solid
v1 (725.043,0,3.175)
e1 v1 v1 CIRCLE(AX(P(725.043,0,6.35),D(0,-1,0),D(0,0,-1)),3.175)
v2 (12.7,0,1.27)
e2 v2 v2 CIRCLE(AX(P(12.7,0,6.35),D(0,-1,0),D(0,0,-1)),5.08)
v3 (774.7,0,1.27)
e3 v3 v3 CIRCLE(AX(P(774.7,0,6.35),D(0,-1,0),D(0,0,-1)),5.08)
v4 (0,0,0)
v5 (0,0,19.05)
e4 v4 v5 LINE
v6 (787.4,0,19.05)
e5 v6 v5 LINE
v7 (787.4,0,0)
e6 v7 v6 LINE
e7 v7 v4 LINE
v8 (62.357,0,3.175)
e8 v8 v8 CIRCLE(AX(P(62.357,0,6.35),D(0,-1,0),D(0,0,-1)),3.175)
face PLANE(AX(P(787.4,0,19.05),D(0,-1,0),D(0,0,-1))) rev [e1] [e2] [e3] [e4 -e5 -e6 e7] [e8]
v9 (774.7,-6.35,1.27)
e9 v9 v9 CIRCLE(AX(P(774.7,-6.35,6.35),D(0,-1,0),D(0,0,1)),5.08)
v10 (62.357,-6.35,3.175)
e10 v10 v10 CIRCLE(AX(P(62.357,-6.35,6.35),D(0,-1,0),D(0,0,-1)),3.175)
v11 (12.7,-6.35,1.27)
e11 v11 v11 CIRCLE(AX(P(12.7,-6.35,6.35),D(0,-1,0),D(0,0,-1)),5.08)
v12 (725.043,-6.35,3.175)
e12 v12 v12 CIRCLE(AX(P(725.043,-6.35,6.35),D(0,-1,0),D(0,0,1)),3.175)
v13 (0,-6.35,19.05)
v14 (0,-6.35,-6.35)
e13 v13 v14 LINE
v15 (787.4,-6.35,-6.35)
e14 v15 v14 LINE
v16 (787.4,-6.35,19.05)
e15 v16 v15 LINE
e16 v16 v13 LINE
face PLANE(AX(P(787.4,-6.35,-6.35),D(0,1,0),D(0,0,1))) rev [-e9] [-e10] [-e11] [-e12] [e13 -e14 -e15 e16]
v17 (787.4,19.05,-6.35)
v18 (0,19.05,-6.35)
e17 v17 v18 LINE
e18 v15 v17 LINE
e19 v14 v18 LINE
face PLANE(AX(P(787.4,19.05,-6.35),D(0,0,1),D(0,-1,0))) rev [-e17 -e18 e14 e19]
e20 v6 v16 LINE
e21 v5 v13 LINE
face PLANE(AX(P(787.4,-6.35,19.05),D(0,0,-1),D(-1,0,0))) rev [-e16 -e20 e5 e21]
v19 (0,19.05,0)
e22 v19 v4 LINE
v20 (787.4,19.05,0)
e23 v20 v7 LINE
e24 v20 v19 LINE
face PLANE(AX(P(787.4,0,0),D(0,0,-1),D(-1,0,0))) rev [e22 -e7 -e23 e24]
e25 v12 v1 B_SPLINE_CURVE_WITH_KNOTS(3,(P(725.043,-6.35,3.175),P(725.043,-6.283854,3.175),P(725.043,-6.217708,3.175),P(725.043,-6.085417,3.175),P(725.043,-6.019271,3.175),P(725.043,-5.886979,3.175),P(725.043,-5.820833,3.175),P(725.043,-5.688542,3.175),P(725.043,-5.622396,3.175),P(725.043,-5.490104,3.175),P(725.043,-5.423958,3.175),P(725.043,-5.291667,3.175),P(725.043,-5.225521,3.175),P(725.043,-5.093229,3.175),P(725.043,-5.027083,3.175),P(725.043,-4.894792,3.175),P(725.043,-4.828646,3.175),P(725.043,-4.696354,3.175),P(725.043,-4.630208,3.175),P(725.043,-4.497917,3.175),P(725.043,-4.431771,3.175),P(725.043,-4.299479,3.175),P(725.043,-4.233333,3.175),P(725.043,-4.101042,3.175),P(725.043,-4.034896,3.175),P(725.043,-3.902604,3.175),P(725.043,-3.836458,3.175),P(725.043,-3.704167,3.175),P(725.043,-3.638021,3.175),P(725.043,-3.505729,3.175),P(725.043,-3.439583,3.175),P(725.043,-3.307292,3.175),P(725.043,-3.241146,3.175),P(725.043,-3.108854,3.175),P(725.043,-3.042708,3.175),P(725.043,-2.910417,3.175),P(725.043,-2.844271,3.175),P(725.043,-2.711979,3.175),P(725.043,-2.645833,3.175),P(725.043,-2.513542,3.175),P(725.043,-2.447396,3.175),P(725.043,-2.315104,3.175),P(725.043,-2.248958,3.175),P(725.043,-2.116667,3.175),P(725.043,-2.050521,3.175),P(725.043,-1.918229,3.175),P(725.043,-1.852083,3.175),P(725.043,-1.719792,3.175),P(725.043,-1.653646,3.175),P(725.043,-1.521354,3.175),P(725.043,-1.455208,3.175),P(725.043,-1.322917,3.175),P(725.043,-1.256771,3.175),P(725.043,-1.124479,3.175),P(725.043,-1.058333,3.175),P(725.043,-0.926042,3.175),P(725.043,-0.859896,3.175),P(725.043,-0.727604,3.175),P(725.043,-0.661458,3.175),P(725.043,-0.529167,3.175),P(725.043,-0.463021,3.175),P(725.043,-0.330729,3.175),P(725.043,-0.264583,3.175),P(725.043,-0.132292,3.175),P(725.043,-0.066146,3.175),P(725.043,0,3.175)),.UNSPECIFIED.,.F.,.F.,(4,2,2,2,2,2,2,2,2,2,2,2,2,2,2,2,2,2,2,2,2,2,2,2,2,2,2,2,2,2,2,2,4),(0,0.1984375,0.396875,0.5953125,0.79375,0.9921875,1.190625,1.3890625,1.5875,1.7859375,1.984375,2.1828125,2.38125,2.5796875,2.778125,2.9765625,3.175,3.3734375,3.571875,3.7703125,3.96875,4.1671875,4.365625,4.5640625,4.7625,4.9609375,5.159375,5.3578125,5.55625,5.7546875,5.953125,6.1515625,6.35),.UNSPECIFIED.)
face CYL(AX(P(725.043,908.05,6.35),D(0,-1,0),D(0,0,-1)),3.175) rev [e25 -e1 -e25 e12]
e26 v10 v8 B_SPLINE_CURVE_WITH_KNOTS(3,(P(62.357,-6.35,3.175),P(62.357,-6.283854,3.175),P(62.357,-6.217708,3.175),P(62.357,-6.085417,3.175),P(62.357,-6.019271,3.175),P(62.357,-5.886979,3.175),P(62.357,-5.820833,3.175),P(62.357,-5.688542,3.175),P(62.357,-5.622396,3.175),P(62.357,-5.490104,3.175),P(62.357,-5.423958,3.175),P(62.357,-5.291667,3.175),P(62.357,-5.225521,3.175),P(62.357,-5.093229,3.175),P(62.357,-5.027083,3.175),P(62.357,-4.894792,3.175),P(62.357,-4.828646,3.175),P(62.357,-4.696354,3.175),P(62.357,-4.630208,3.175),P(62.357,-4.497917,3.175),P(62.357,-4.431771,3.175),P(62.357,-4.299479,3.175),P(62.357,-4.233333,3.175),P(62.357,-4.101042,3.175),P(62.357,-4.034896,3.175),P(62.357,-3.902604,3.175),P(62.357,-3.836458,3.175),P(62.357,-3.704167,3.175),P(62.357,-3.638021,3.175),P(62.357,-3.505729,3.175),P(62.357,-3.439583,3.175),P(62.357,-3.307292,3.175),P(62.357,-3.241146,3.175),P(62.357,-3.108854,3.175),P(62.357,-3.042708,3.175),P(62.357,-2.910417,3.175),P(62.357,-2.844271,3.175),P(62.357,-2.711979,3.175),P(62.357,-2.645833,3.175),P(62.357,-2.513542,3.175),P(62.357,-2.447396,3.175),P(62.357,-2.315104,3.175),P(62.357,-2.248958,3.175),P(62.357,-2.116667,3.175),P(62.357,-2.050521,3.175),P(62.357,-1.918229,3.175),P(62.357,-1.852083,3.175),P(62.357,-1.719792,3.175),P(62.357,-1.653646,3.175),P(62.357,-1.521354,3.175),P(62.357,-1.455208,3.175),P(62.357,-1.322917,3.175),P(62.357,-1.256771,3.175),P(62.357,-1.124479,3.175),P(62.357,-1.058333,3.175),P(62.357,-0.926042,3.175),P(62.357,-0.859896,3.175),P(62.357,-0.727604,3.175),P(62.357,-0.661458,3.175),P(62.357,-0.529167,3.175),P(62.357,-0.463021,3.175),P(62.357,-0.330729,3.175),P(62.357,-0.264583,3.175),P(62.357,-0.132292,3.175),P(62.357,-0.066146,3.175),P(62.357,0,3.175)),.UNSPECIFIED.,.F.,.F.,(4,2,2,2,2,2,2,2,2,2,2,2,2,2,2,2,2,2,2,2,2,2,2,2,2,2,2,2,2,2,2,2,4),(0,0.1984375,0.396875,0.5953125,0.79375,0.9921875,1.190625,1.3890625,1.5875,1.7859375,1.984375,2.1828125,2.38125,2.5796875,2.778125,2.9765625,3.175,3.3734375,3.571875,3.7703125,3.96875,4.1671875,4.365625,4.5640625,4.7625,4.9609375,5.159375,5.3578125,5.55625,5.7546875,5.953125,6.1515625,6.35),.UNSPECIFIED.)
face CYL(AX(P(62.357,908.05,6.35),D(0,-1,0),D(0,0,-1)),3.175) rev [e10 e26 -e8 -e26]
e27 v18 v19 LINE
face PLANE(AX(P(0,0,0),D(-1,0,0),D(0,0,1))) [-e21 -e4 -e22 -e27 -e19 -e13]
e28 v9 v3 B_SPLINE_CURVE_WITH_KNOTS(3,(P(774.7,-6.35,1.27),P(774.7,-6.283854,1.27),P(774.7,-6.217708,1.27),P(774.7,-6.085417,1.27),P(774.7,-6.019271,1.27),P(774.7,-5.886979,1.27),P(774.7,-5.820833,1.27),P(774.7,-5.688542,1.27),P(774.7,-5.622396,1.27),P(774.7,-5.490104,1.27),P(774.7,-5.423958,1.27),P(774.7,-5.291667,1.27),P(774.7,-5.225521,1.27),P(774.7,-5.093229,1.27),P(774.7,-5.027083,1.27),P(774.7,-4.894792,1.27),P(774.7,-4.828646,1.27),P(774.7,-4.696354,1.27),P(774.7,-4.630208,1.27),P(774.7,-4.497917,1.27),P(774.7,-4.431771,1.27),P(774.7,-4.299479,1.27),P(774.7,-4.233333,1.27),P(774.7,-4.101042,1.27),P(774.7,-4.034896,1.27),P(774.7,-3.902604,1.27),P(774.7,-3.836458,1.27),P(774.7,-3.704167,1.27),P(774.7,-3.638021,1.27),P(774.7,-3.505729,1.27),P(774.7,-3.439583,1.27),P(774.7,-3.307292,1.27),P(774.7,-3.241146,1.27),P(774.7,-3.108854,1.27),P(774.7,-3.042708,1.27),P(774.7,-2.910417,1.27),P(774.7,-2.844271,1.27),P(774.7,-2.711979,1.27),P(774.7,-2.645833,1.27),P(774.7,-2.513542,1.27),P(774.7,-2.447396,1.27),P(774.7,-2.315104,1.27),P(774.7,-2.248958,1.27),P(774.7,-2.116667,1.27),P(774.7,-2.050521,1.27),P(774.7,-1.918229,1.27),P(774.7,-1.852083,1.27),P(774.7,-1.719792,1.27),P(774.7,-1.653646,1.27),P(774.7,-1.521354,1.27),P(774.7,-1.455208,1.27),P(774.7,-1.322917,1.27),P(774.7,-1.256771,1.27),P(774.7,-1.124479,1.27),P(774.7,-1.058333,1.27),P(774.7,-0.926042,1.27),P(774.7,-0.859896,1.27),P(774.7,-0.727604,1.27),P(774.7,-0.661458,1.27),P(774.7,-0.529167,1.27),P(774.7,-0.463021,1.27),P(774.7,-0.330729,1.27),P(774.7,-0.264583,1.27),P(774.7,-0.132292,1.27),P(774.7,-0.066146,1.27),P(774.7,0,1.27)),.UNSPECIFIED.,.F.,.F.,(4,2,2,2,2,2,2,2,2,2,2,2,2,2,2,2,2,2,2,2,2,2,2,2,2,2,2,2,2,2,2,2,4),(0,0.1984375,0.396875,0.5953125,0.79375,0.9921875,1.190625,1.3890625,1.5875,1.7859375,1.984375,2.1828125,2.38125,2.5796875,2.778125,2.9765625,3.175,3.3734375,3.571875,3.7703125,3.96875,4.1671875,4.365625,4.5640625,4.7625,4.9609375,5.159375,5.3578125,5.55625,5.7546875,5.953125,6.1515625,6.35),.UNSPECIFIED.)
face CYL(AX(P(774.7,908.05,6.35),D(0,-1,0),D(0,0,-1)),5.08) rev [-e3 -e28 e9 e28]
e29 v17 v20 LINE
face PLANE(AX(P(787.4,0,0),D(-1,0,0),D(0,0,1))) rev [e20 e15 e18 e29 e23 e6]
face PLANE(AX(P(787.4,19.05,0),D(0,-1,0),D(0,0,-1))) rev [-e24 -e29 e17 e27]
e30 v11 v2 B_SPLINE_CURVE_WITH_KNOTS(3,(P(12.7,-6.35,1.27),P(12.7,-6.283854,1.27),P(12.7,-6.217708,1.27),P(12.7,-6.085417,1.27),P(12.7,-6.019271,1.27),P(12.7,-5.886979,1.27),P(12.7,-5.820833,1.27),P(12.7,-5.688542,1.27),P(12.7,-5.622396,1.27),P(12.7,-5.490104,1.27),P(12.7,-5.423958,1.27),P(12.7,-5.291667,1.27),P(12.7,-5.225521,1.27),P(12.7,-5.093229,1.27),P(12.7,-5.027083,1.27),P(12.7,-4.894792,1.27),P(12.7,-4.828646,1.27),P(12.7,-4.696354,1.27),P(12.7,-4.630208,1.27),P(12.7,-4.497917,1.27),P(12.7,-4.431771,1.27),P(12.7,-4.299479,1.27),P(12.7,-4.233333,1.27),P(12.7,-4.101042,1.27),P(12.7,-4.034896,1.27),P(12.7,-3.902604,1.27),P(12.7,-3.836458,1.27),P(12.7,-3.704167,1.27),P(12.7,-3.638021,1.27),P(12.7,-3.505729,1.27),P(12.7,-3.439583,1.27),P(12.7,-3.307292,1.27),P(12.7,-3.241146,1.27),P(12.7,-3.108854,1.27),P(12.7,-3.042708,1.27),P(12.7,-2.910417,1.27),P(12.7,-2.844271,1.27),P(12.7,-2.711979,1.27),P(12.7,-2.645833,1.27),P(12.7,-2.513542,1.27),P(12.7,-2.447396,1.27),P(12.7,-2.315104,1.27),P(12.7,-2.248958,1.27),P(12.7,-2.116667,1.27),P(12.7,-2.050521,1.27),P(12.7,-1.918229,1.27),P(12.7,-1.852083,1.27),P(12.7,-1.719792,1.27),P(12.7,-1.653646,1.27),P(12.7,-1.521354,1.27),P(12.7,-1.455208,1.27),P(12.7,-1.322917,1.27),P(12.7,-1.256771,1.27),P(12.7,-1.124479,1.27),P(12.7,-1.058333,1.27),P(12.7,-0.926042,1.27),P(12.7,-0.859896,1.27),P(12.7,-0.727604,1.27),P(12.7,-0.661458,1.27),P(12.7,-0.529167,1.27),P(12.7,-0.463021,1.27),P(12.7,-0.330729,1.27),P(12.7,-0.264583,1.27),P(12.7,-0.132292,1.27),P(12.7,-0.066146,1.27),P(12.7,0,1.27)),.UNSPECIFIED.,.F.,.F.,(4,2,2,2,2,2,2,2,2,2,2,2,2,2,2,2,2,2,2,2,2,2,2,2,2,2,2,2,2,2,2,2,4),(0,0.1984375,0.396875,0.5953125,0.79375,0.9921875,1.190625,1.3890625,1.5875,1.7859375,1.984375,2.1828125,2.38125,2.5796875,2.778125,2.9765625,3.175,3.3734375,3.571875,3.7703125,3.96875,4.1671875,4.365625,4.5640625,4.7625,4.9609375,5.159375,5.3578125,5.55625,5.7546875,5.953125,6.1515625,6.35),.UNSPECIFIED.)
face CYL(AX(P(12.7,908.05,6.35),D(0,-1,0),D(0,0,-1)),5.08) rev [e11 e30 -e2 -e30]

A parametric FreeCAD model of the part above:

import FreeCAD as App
import Part
import Sketcher
Q = App.Units.Quantity


def add_polygon(sketch, points):
    """Adds a closed chain of lines whose ends are joined by coincident constraints."""
    first, n = sketch.GeometryCount, len(points)
    for a, b in zip(points, points[1:] + points[:1]):
        sketch.addGeometry(Part.LineSegment(App.Vector(*a, 0), App.Vector(*b, 0)), False)
    for i in range(n):
        sketch.addConstraint(Sketcher.Constraint("Coincident", first + i, 2, first + (i + 1) % n, 1))

doc = App.newDocument("Part")
body = doc.addObject("PartDesign::Body", "Body")

# Sketch on YZ plane
sketch1 = body.newObject("Sketcher::SketchObject", "Sketch")
sketch1.AttachmentSupport = (doc.getObject("YZ_Plane"), [""])
sketch1.MapMode = "FlatFace"
add_polygon(sketch1, [(19, 0), (0, 0), (0, 19), (-6, 19), (-6, -6), (19, -6)])  # lines 0-5
sketch1.addConstraint([
    Sketcher.Constraint("Horizontal", 0),
    Sketcher.Constraint("Vertical", 1),
    Sketcher.Constraint("Horizontal", 2),
    Sketcher.Constraint("Vertical", 3),
    Sketcher.Constraint("Horizontal", 4),
    Sketcher.Constraint("Vertical", 5),
    Sketcher.Constraint("Coincident", 0, 2, -1, 1),
    Sketcher.Constraint("Equal", 0, 1),
    Sketcher.Constraint("Equal", 4, 3),
    Sketcher.Constraint("DistanceX", 4, 1, 4, 2, Q("1 in")),
    Sketcher.Constraint("DistanceX", 0, 2, 0, 1, Q("0.75 in")),
])
pad1 = body.newObject("PartDesign::Pad", "Pad")
pad1.Profile = sketch1
pad1.Length = Q("31 in")

# Sketch on XZ plane
sketch2 = body.newObject("Sketcher::SketchObject", "Sketch001")
sketch2.AttachmentSupport = (doc.getObject("XZ_Plane"), [""])
sketch2.MapMode = "FlatFace"
sketch2.AttachmentOffset = App.Placement(App.Vector(0, 0, 0.25 * 25.4), App.Rotation())
sketch2.addGeometry([
    Part.Circle(App.Vector(12.7, 6.3, 0), App.Vector(0, 0, 1), 5.1),
    Part.Circle(App.Vector(62.4, 6.3, 0), App.Vector(0, 0, 1), 3.2),
    Part.Circle(App.Vector(725, 6.3, 0), App.Vector(0, 0, 1), 3.2),
    Part.Circle(App.Vector(774.7, 6.3, 0), App.Vector(0, 0, 1), 5.1),
], False)
sketch2.addConstraint([
    Sketcher.Constraint("Equal", 1, 2),
    Sketcher.Constraint("Equal", 0, 3),
    Sketcher.Constraint("Horizontal", 0, 3, 1, 3),
    Sketcher.Constraint("Horizontal", 1, 3, 2, 3),
    Sketcher.Constraint("Horizontal", 2, 3, 3, 3),
    Sketcher.Constraint("Diameter", 0, Q("0.4 in")),
    Sketcher.Constraint("Diameter", 1, Q("0.25 in")),
    Sketcher.Constraint("DistanceX", 0, 3, 3, 3, Q("30 in")),
    Sketcher.Constraint("DistanceX", -1, 1, 0, 3, Q("0.5 in")),
    Sketcher.Constraint("DistanceY", -1, 1, 0, 3, Q("0.25 in")),
    Sketcher.Constraint("DistanceX", 1, 3, 2, 3, Q("26.09 in")),
    Sketcher.Constraint("DistanceX", -1, 1, 1, 3, Q("2.455 in")),
])
pocket1 = body.newObject("PartDesign::Pocket", "Pocket")
pocket1.Profile = sketch2
pocket1.Length = Q("36 in")

doc.recompute()
